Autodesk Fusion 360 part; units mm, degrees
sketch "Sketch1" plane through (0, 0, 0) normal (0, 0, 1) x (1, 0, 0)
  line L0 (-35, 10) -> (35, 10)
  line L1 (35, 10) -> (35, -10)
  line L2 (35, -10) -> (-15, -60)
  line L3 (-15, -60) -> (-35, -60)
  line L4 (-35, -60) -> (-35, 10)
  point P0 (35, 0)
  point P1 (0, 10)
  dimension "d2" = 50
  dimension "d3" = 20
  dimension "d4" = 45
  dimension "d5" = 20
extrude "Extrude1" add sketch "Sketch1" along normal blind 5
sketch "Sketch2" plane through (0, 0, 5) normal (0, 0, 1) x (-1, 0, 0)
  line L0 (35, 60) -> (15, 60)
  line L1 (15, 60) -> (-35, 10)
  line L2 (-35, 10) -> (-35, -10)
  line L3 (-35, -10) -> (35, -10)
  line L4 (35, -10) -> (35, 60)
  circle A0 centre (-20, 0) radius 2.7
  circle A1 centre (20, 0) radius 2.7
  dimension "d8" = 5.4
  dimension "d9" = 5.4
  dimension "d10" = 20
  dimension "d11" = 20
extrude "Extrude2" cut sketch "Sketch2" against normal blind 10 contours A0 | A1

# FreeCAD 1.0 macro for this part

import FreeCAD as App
import Part
import Sketcher

V = App.Vector


def add_polygon(sketch, points):
    """Adds a closed chain of lines whose ends are joined by coincident constraints."""
    first, n = sketch.GeometryCount, len(points)
    for a, b in zip(points, points[1:] + points[:1]):
        sketch.addGeometry(Part.LineSegment(App.Vector(*a, 0), App.Vector(*b, 0)), False)
    for i in range(n):
        sketch.addConstraint(Sketcher.Constraint("Coincident", first + i, 2, first + (i + 1) % n, 1))

doc = App.newDocument("Part")
params = doc.addObject("Spreadsheet::Sheet", "Params")
for row, (alias, value) in enumerate([
    ("sketch1_width", "20 mm"),
    ("pad1_length", "5 mm"),
    ("sketch2_diameter", "5.4 mm"),
    ("pocket1_length", "10 mm"),
], start=1):
    params.set(f"A{row}", alias)
    params.set(f"B{row}", "=" + value)
    params.setAlias(f"B{row}", alias)

body = doc.addObject("PartDesign::Body", "Body")

# Sketch on XY plane
sketch1 = doc.addObject("Sketcher::SketchObject", "Sketch")
body.addObject(sketch1)
sketch1.AttachmentSupport = (doc.XY_Plane, [""])
sketch1.MapMode = "FlatFace"
add_polygon(sketch1, [(35, 10), (-35, 10), (-35, -60), (-15, -60), (35, -10)])  # lines 0-4
sketch1.addConstraint([
    Sketcher.Constraint("Horizontal", 0),
    Sketcher.Constraint("Vertical", 1),
    Sketcher.Constraint("Horizontal", 2),
    Sketcher.Constraint("Vertical", 4),
    Sketcher.Constraint("Symmetric", 0, 2, 3, 2, -1, 1),
    Sketcher.Constraint("Equal", 0, 1),
    Sketcher.Constraint("Equal", 2, 4),
    Sketcher.Constraint("DistanceX", 2, 1, 2, 2, 20.0),
    Sketcher.Constraint("DistanceX", 2, 2, 3, 2, 50.0),
])
sketch1.setExpression("Constraints[12]", "Params.sketch1_width")
pad1 = doc.addObject("PartDesign::Pad", "Pad")
body.addObject(pad1)
pad1.Profile = sketch1
pad1.setExpression("Length", "Params.pad1_length")

# Sketch on XY plane
sketch2 = doc.addObject("Sketcher::SketchObject", "Sketch001")
body.addObject(sketch2)
sketch2.AttachmentSupport = (doc.XY_Plane, [""])
sketch2.MapMode = "FlatFace"
sketch2.AttachmentOffset = App.Placement(V(0, 0, 5), App.Rotation())
sketch2.addGeometry([
    Part.Circle(V(20, 0, 0), V(0, 0, 1), 2.7),
    Part.Circle(V(-20, 0, 0), V(0, 0, 1), 2.7),
], False)
sketch2.addConstraint([
    Sketcher.Constraint("Equal", 0, 1),
    Sketcher.Constraint("Symmetric", 0, 3, 1, 3, -1, 1),
    Sketcher.Constraint("PointOnObject", 0, 3, -1),
    Sketcher.Constraint("Diameter", 0, 5.4),
    Sketcher.Constraint("DistanceX", -1, 1, 0, 3, 20.0),
])
sketch2.setExpression("Constraints[3]", "Params.sketch2_diameter")
pocket1 = doc.addObject("PartDesign::Pocket", "Pocket")
body.addObject(pocket1)
pocket1.Profile = sketch2
pocket1.setExpression("Length", "Params.pocket1_length")

doc.recompute()
